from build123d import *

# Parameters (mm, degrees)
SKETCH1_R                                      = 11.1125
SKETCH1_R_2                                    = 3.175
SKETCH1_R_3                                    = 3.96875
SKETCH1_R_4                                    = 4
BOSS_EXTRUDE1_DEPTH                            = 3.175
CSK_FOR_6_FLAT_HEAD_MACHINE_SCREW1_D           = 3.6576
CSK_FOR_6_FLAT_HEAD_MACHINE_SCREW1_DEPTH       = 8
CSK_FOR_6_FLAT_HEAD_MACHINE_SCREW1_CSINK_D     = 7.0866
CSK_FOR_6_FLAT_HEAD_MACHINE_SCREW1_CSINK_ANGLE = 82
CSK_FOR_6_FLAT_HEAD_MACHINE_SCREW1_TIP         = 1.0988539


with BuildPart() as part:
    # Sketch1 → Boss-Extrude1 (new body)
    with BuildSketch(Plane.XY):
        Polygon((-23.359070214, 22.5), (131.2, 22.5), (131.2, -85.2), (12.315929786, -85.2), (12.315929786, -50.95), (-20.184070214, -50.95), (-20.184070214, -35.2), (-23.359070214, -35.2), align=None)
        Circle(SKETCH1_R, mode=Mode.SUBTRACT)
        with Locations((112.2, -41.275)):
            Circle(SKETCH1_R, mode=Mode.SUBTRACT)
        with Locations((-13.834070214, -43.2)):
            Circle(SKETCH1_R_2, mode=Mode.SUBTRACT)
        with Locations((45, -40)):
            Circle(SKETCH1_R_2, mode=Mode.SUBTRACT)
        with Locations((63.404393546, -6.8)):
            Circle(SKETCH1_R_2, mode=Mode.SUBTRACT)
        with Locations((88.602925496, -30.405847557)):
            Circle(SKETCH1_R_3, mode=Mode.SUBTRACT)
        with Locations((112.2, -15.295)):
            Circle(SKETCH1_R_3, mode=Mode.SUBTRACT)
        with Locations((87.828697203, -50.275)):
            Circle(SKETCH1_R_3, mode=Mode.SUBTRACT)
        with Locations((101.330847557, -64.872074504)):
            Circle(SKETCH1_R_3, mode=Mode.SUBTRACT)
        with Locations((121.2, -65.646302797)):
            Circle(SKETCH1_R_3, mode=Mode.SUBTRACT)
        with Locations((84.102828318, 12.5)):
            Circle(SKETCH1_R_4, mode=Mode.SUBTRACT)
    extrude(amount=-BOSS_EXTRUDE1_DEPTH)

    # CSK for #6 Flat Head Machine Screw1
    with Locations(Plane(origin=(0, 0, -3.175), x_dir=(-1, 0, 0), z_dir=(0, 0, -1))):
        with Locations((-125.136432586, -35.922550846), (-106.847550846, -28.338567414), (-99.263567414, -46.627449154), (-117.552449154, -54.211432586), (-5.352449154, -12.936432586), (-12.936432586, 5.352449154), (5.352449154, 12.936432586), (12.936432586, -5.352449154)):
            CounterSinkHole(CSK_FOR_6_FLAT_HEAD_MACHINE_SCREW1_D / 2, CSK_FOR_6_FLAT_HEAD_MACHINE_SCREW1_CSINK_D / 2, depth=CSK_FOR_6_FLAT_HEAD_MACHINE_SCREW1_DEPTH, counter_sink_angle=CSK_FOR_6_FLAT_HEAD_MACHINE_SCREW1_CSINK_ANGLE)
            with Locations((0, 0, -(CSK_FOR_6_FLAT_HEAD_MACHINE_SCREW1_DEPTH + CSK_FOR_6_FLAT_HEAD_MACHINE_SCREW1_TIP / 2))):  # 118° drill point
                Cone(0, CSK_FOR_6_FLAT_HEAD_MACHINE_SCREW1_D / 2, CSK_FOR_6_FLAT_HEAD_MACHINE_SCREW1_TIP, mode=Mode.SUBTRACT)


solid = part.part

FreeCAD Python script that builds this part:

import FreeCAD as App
import Part
import Sketcher
Q = App.Units.Quantity

doc = App.newDocument("Part")
body = doc.addObject("PartDesign::Body", "Body")

# Sketch on XY plane
sketch1 = body.newObject("Sketcher::SketchObject", "Sketch")
sketch1.AttachmentSupport = (doc.getObject("XY_Plane"), [""])
sketch1.MapMode = "FlatFace"
sketch1.addGeometry(Part.LineSegment(App.Vector(131.2, 22.5, 0), App.Vector(-23.4, 22.5, 0)), False)
sketch1.addGeometry(Part.LineSegment(App.Vector(-23.4, 22.5, 0), App.Vector(-23.4, -35.2, 0)), False)
sketch1.addGeometry(Part.LineSegment(App.Vector(-23.4, -35.2, 0), App.Vector(-20.2, -35.2, 0)), False)
sketch1.addGeometry(Part.LineSegment(App.Vector(-20.2, -35.2, 0), App.Vector(-20.2, -51, 0)), False)
sketch1.addGeometry(Part.LineSegment(App.Vector(-20.2, -51, 0), App.Vector(12.3, -51, 0)), False)
sketch1.addGeometry(Part.LineSegment(App.Vector(12.3, -51, 0), App.Vector(12.3, -85.2, 0)), False)
sketch1.addGeometry(Part.LineSegment(App.Vector(12.3, -85.2, 0), App.Vector(131.2, -85.2, 0)), False)
sketch1.addGeometry(Part.LineSegment(App.Vector(131.2, -85.2, 0), App.Vector(131.2, 22.5, 0)), False)
sketch1.addGeometry(Part.Circle(App.Vector(121.2, -65.6, 0), App.Vector(0, 0, 1), 4), False)
sketch1.addGeometry(Part.Circle(App.Vector(101.3, -64.9, 0), App.Vector(0, 0, 1), 4), False)
sketch1.addGeometry(Part.Circle(App.Vector(87.8, -50.3, 0), App.Vector(0, 0, 1), 4), False)
sketch1.addGeometry(Part.Circle(App.Vector(112.2, -41.3, 0), App.Vector(0, 0, 1), 11.1), False)
sketch1.addGeometry(Part.Circle(App.Vector(88.6, -30.4, 0), App.Vector(0, 0, 1), 4), False)
sketch1.addGeometry(Part.Circle(App.Vector(45, -40, 0), App.Vector(0, 0, 1), 3.2), False)
sketch1.addGeometry(Part.Circle(App.Vector(-13.8, -43.2, 0), App.Vector(0, 0, 1), 3.2), False)
sketch1.addGeometry(Part.Circle(App.Vector(112.2, -15.3, 0), App.Vector(0, 0, 1), 4), False)
sketch1.addGeometry(Part.Circle(App.Vector(63.4, -6.8, 0), App.Vector(0, 0, 1), 3.2), False)
sketch1.addGeometry(Part.Circle(App.Vector(84.1, 12.5, 0), App.Vector(0, 0, 1), 4), False)
sketch1.addGeometry(Part.Circle(App.Vector(0, 0, 0), App.Vector(0, 0, 1), 11.1), False)
sketch1.addConstraint(Sketcher.Constraint("Coincident", 0, 2, 1, 1))
sketch1.addConstraint(Sketcher.Constraint("Coincident", 1, 2, 2, 1))
sketch1.addConstraint(Sketcher.Constraint("Coincident", 2, 2, 3, 1))
sketch1.addConstraint(Sketcher.Constraint("Coincident", 3, 2, 4, 1))
sketch1.addConstraint(Sketcher.Constraint("Coincident", 4, 2, 5, 1))
sketch1.addConstraint(Sketcher.Constraint("Coincident", 5, 2, 6, 1))
sketch1.addConstraint(Sketcher.Constraint("Coincident", 6, 2, 7, 1))
sketch1.addConstraint(Sketcher.Constraint("Coincident", 7, 2, 0, 1))
sketch1.addConstraint(Sketcher.Constraint("Horizontal", 0))
sketch1.addConstraint(Sketcher.Constraint("Vertical", 1))
sketch1.addConstraint(Sketcher.Constraint("Horizontal", 2))
sketch1.addConstraint(Sketcher.Constraint("Vertical", 3))
sketch1.addConstraint(Sketcher.Constraint("Horizontal", 4))
sketch1.addConstraint(Sketcher.Constraint("Vertical", 5))
sketch1.addConstraint(Sketcher.Constraint("Horizontal", 6))
sketch1.addConstraint(Sketcher.Constraint("Vertical", 7))
sketch1.addConstraint(Sketcher.Constraint("Coincident", 18, 3, -1, 1))
sketch1.addConstraint(Sketcher.Constraint("Equal", 8, 9))
sketch1.addConstraint(Sketcher.Constraint("Equal", 9, 10))
sketch1.addConstraint(Sketcher.Constraint("Equal", 10, 12))
sketch1.addConstraint(Sketcher.Constraint("Equal", 13, 14))
sketch1.addConstraint(Sketcher.Constraint("Equal", 12, 15))
sketch1.addConstraint(Sketcher.Constraint("Equal", 14, 16))
sketch1.addConstraint(Sketcher.Constraint("Equal", 11, 18))
sketch1.addConstraint(Sketcher.Constraint("Vertical", 11, 3, 15, 3))
sketch1.addConstraint(Sketcher.Constraint("Diameter", 13, Q("0.25 in")))
sketch1.addConstraint(Sketcher.Constraint("Diameter", 8, Q("0.3125 in")))
sketch1.addConstraint(Sketcher.Constraint("Diameter", 11, Q("0.875 in")))
sketch1.addConstraint(Sketcher.Constraint("DistanceX", 13, 3, 8, 3, Q("3 in")))
sketch1.addConstraint(Sketcher.Constraint("Diameter", 17, 8.0))
sketch1.addConstraint(Sketcher.Constraint("DistanceX", 2, 1, 2, 2, Q("0.125 in")))
sketch1.addConstraint(Sketcher.Constraint("DistanceX", 2, 2, 14, 3, Q("0.25 in")))
sketch1.addConstraint(Sketcher.Constraint("DistanceY", 11, 3, -1, 1, Q("1.625 in")))
sketch1.addConstraint(Sketcher.Constraint("DistanceY", 6, 2, 10, 3, Q("1.375 in")))
sketch1.addConstraint(Sketcher.Constraint("DistanceX", 4, 1, 4, 2, 32.5))
sketch1.addConstraint(Sketcher.Constraint("DistanceY", 1, 2, 1, 1, 57.7))
sketch1.addConstraint(Sketcher.Constraint("DistanceY", 3, 2, 3, 1, 15.75))
sketch1.addConstraint(Sketcher.Constraint("DistanceY", 5, 2, 5, 1, 34.25))
sketch1.addConstraint(Sketcher.Constraint("DistanceY", 8, 3, -1, 1, Q("2.5845001 in")))
sketch1.addConstraint(Sketcher.Constraint("DistanceX", 10, 3, 11, 3, Q("0.9595001 in")))
sketch1.addConstraint(Sketcher.Constraint("DistanceX", 0, 2, 0, 1, 154.55907))
sketch1.addConstraint(Sketcher.Constraint("DistanceX", -1, 1, 8, 3, 121.2))
sketch1.addConstraint(Sketcher.Constraint("DistanceY", 10, 3, -1, 1, 50.275))
sketch1.addConstraint(Sketcher.Constraint("DistanceX", -1, 1, 11, 3, 112.2))
sketch1.addConstraint(Sketcher.Constraint("DistanceY", 13, 3, -1, 1, 40.0))
sketch1.addConstraint(Sketcher.Constraint("DistanceY", 14, 3, -1, 1, 43.2))
sketch1.addConstraint(Sketcher.Constraint("DistanceY", 15, 3, -1, 1, 15.295))
sketch1.addConstraint(Sketcher.Constraint("DistanceY", 16, 3, -1, 1, 6.8))
sketch1.addConstraint(Sketcher.Constraint("DistanceY", -1, 1, 17, 3, 12.5))
sketch1.addConstraint(Sketcher.Constraint("DistanceX", -1, 1, 6, 2, 131.2))
sketch1.addConstraint(Sketcher.Constraint("DistanceX", 0, 2, 17, 3, 107.461899))
sketch1.addConstraint(Sketcher.Constraint("DistanceY", 8, 3, 9, 3, 0.774228))
sketch1.addConstraint(Sketcher.Constraint("DistanceX", 10, 3, 9, 3, 13.50215))
sketch1.addConstraint(Sketcher.Constraint("DistanceX", 10, 3, 12, 3, 0.774228))
sketch1.addConstraint(Sketcher.Constraint("DistanceX", 16, 3, 12, 3, 25.198532))
sketch1.addConstraint(Sketcher.Constraint("DistanceY", 12, 3, -1, 1, 30.405848))
pad1 = body.newObject("PartDesign::Pad", "Pad")
pad1.Profile = sketch1
pad1.Length = Q("0.125 in")
pad1.Reversed = True

# Sketch on XY plane
sketch2 = body.newObject("Sketcher::SketchObject", "Sketch001")
sketch2.AttachmentSupport = (doc.getObject("XY_Plane"), [""])
sketch2.MapMode = "FlatFace"
sketch2.AttachmentOffset = App.Placement(App.Vector(0, 0, -0.125 * 25.4), App.Rotation())
sketch2.addGeometry(Part.Circle(App.Vector(125.1, -35.9, 0), App.Vector(0, 0, 1), 1.8), False)
sketch2.addGeometry(Part.Circle(App.Vector(106.8, -28.3, 0), App.Vector(0, 0, 1), 1.8), False)
sketch2.addGeometry(Part.Circle(App.Vector(99.3, -46.6, 0), App.Vector(0, 0, 1), 1.8), False)
sketch2.addGeometry(Part.Circle(App.Vector(117.6, -54.2, 0), App.Vector(0, 0, 1), 1.8), False)
sketch2.addGeometry(Part.Circle(App.Vector(5.4, -12.9, 0), App.Vector(0, 0, 1), 1.8), False)
sketch2.addGeometry(Part.Circle(App.Vector(12.9, 5.4, 0), App.Vector(0, 0, 1), 1.8), False)
sketch2.addGeometry(Part.Circle(App.Vector(-5.4, 12.9, 0), App.Vector(0, 0, 1), 1.8), False)
sketch2.addGeometry(Part.Circle(App.Vector(-12.9, -5.4, 0), App.Vector(0, 0, 1), 1.8), False)
sketch2.addConstraint(Sketcher.Constraint("Equal", 0, 1))
sketch2.addConstraint(Sketcher.Constraint("Equal", 1, 2))
sketch2.addConstraint(Sketcher.Constraint("Equal", 2, 3))
sketch2.addConstraint(Sketcher.Constraint("Equal", 3, 4))
sketch2.addConstraint(Sketcher.Constraint("Equal", 4, 5))
sketch2.addConstraint(Sketcher.Constraint("Equal", 5, 6))
sketch2.addConstraint(Sketcher.Constraint("Equal", 6, 7))
sketch2.addConstraint(Sketcher.Constraint("Symmetric", 4, 3, 6, 3, -1, 1))
sketch2.addConstraint(Sketcher.Constraint("Symmetric", 5, 3, 7, 3, -1, 1))
sketch2.addConstraint(Sketcher.Constraint("Diameter", 0, Q("0.144 in")))
sketch2.addConstraint(Sketcher.Constraint("DistanceY", 3, 3, 4, 3, Q("1.625 in")))
sketch2.addConstraint(Sketcher.Constraint("DistanceY", 0, 3, 5, 3, Q("1.625 in")))
sketch2.addConstraint(Sketcher.Constraint("DistanceY", 1, 3, 6, 3, Q("1.625 in")))
sketch2.addConstraint(Sketcher.Constraint("DistanceY", 2, 3, 7, 3, Q("1.625 in")))
sketch2.addConstraint(Sketcher.Constraint("DistanceY", 2, 3, 0, 3, 10.704898))
sketch2.addConstraint(Sketcher.Constraint("DistanceX", 1, 3, 3, 3, 10.704898))
sketch2.addConstraint(Sketcher.Constraint("DistanceX", 4, 3, 1, 3, 101.495102))
sketch2.addConstraint(Sketcher.Constraint("DistanceX", 5, 3, 0, 3, 112.2))
sketch2.addConstraint(Sketcher.Constraint("DistanceX", 6, 3, 4, 3, 10.704898))
sketch2.addConstraint(Sketcher.Constraint("DistanceX", 7, 3, 2, 3, 112.2))
sketch2.addConstraint(Sketcher.Constraint("DistanceX", 1, 3, 0, 3, 18.288882))
sketch2.addConstraint(Sketcher.Constraint("DistanceY", 2, 3, 1, 3, 18.288882))
doc.recompute()
hole = body.newObject("PartDesign::Hole", "Hole")
hole.Profile = sketch2
hole.ThreadType = "None"
hole.Diameter = Q("0.144 in")
hole.DepthType = "Dimension"
hole.Depth = 8
hole.DrillPoint = "Angled"
hole.DrillPointAngle = 118
hole.HoleCutType = "Countersink"
hole.HoleCutDiameter = Q("0.279 in")
hole.HoleCutCountersinkAngle = 82
hole.Reversed = True

doc.recompute()
